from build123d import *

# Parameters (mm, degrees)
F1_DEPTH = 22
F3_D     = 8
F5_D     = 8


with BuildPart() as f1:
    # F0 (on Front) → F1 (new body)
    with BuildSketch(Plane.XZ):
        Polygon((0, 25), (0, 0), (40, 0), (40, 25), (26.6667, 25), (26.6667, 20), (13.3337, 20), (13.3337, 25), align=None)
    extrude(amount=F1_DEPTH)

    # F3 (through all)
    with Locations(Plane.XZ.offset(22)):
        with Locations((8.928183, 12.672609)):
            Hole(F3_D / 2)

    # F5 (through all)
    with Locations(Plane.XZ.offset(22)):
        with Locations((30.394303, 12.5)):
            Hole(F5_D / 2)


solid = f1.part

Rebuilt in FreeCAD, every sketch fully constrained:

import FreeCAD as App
import Part
import Sketcher


def add_polygon(sketch, points):
    """Adds a closed chain of lines whose ends are joined by coincident constraints."""
    first, n = sketch.GeometryCount, len(points)
    for a, b in zip(points, points[1:] + points[:1]):
        sketch.addGeometry(Part.LineSegment(App.Vector(*a, 0), App.Vector(*b, 0)), False)
    for i in range(n):
        sketch.addConstraint(Sketcher.Constraint("Coincident", first + i, 2, first + (i + 1) % n, 1))

doc = App.newDocument("Part")
body = doc.addObject("PartDesign::Body", "Body")

# Sketch on XZ plane
sketch1 = body.newObject("Sketcher::SketchObject", "Sketch")
sketch1.AttachmentSupport = (doc.getObject("XZ_Plane"), [""])
sketch1.MapMode = "FlatFace"
add_polygon(sketch1, [(0, 25), (0, 0), (40, 0), (40, 25), (27, 25), (27, 20), (13, 20), (13, 25)])  # lines 0-7
sketch1.addConstraint(Sketcher.Constraint("Vertical", 0))
sketch1.addConstraint(Sketcher.Constraint("Horizontal", 1))
sketch1.addConstraint(Sketcher.Constraint("Vertical", 2))
sketch1.addConstraint(Sketcher.Constraint("Horizontal", 3))
sketch1.addConstraint(Sketcher.Constraint("Vertical", 4))
sketch1.addConstraint(Sketcher.Constraint("Horizontal", 5))
sketch1.addConstraint(Sketcher.Constraint("Vertical", 6))
sketch1.addConstraint(Sketcher.Constraint("Horizontal", 7))
sketch1.addConstraint(Sketcher.Constraint("Coincident", 0, 2, -1, 1))
sketch1.addConstraint(Sketcher.Constraint("Horizontal", 3, 2, 6, 2))
sketch1.addConstraint(Sketcher.Constraint("DistanceX", 1, 1, 1, 2, 40.0))
sketch1.addConstraint(Sketcher.Constraint("DistanceY", 0, 2, 0, 1, 25.0))
sketch1.addConstraint(Sketcher.Constraint("DistanceY", 4, 2, 4, 1, 5.0))
sketch1.addConstraint(Sketcher.Constraint("DistanceX", 5, 2, 5, 1, 13.333))
sketch1.addConstraint(Sketcher.Constraint("DistanceX", 3, 2, 3, 1, 13.3333))
pad1 = body.newObject("PartDesign::Pad", "Pad")
pad1.Profile = sketch1
pad1.Length = 22

# Sketch on XZ plane
sketch2 = body.newObject("Sketcher::SketchObject", "Sketch001")
sketch2.AttachmentSupport = (doc.getObject("XZ_Plane"), [""])
sketch2.MapMode = "FlatFace"
sketch2.AttachmentOffset = App.Placement(App.Vector(0, 0, 22), App.Rotation())
sketch2.addGeometry(Part.Circle(App.Vector(8.9, 12.7, 0), App.Vector(0, 0, 1), 4), False)
sketch2.addConstraint(Sketcher.Constraint("Diameter", 0, 8.0))
sketch2.addConstraint(Sketcher.Constraint("DistanceY", -1, 1, 0, 3, 12.672609))
sketch2.addConstraint(Sketcher.Constraint("DistanceX", -1, 1, 0, 3, 8.928183))
doc.recompute()
hole = body.newObject("PartDesign::Hole", "Hole")
hole.Profile = sketch2
hole.ThreadType = "None"
hole.Diameter = 8
hole.DepthType = "ThroughAll"

# Sketch on XZ plane
sketch3 = body.newObject("Sketcher::SketchObject", "Sketch002")
sketch3.AttachmentSupport = (doc.getObject("XZ_Plane"), [""])
sketch3.MapMode = "FlatFace"
sketch3.AttachmentOffset = App.Placement(App.Vector(0, 0, 22), App.Rotation())
sketch3.addGeometry(Part.Circle(App.Vector(30.4, 12.5, 0), App.Vector(0, 0, 1), 4), False)
sketch3.addConstraint(Sketcher.Constraint("Diameter", 0, 8.0))
sketch3.addConstraint(Sketcher.Constraint("DistanceY", -1, 1, 0, 3, 12.5))
sketch3.addConstraint(Sketcher.Constraint("DistanceX", -1, 1, 0, 3, 30.394303))
doc.recompute()
hole2 = body.newObject("PartDesign::Hole", "Hole001")
hole2.Profile = sketch3
hole2.ThreadType = "None"
hole2.Diameter = 8
hole2.DepthType = "ThroughAll"

doc.recompute()
